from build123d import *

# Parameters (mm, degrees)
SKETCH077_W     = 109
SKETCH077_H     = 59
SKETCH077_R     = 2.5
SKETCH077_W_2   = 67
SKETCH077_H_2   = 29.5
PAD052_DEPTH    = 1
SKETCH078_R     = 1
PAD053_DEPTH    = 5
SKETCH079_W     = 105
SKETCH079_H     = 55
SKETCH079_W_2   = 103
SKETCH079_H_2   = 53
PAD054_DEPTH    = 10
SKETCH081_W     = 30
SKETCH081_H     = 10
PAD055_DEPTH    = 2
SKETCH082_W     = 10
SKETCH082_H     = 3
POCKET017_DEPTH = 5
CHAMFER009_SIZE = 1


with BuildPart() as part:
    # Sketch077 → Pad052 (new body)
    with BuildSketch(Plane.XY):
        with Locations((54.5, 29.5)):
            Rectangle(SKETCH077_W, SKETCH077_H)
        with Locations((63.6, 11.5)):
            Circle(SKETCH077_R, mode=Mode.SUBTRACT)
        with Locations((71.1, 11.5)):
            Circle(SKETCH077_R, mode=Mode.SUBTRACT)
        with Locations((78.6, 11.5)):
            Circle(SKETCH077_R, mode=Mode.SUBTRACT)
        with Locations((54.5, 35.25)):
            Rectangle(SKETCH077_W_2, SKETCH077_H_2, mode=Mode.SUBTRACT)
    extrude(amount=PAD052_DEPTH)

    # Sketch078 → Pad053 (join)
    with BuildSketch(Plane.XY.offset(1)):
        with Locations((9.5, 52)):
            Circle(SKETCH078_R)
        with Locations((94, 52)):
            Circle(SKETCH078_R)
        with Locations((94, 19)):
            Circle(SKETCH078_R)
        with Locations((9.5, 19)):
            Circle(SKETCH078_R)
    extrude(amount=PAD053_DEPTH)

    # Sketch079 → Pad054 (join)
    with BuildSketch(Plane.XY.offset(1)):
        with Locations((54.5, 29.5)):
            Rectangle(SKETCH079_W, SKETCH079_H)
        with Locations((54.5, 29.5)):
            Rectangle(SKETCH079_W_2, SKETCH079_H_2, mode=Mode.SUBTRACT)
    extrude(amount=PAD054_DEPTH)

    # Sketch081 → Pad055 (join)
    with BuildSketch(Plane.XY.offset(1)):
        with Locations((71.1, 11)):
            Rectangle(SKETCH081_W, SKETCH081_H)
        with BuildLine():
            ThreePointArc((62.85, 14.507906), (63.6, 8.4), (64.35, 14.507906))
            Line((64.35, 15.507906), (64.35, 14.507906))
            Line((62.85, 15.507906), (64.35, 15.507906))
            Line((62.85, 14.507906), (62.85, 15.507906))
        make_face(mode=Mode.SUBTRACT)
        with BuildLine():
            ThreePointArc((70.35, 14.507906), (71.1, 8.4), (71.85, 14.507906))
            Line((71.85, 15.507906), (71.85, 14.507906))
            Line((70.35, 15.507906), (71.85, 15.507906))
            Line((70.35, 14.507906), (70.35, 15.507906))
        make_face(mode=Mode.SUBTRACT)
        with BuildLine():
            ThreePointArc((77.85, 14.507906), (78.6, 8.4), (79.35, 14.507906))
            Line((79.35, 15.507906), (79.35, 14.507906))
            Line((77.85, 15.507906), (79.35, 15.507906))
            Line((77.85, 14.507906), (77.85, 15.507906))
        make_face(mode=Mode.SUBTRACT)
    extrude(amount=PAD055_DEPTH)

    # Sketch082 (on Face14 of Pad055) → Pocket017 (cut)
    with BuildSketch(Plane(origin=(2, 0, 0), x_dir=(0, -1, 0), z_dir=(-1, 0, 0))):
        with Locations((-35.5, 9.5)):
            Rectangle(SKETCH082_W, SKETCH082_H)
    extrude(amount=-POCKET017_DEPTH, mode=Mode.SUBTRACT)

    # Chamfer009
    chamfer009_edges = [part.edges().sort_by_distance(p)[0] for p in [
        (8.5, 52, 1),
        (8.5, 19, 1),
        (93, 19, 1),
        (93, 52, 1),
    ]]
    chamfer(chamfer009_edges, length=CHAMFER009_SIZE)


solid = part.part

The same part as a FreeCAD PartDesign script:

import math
import FreeCAD as App
import Part
import Sketcher


def edges_at(feature, points):
    """Names of the edges that pass closest to the given points."""
    edges = feature.Shape.Edges
    near = lambda p: min(range(len(edges)), key=lambda i: edges[i].distToShape(Part.Vertex(*p))[0])
    return sorted({f"Edge{near(p) + 1}" for p in points})


def add_polygon(sketch, points):
    """Adds a closed chain of lines whose ends are joined by coincident constraints."""
    first, n = sketch.GeometryCount, len(points)
    for a, b in zip(points, points[1:] + points[:1]):
        sketch.addGeometry(Part.LineSegment(App.Vector(*a, 0), App.Vector(*b, 0)), False)
    for i in range(n):
        sketch.addConstraint(Sketcher.Constraint("Coincident", first + i, 2, first + (i + 1) % n, 1))

doc = App.newDocument("Part")
body = doc.addObject("PartDesign::Body", "Body")

sketch1 = body.newObject("Sketcher::SketchObject", "Sketch")
sketch1.AttachmentSupport = (doc.getObject("XY_Plane"), [""])
sketch1.MapMode = "FlatFace"
add_polygon(sketch1, [(0, 59), (0, 0), (109, 0), (109, 59)])
sketch1.addGeometry(Part.Circle(App.Vector(63.6, 11.5, 0), App.Vector(0, 0, 1), 2.5), False)
sketch1.addGeometry(Part.Circle(App.Vector(71.1, 11.5, 0), App.Vector(0, 0, 1), 2.5), False)
sketch1.addGeometry(Part.Circle(App.Vector(78.6, 11.5, 0), App.Vector(0, 0, 1), 2.5), False)
add_polygon(sketch1, [(88, 20.5), (21, 20.5), (21, 50), (88, 50)])
sketch1.addConstraint(Sketcher.Constraint("Vertical", 0))
sketch1.addConstraint(Sketcher.Constraint("Horizontal", 1))
sketch1.addConstraint(Sketcher.Constraint("Vertical", 2))
sketch1.addConstraint(Sketcher.Constraint("Horizontal", 3))
sketch1.addConstraint(Sketcher.Constraint("Horizontal", 7))
sketch1.addConstraint(Sketcher.Constraint("Vertical", 8))
sketch1.addConstraint(Sketcher.Constraint("Horizontal", 9))
sketch1.addConstraint(Sketcher.Constraint("Vertical", 10))
sketch1.addConstraint(Sketcher.Constraint("Coincident", 0, 2, -1, 1))
sketch1.addConstraint(Sketcher.Constraint("Equal", 4, 5))
sketch1.addConstraint(Sketcher.Constraint("Equal", 5, 6))
sketch1.addConstraint(Sketcher.Constraint("Horizontal", 4, 3, 5, 3))
sketch1.addConstraint(Sketcher.Constraint("Horizontal", 5, 3, 6, 3))
sketch1.addConstraint(Sketcher.Constraint("Diameter", 4, 5.0))
sketch1.addConstraint(Sketcher.Constraint("DistanceX", 1, 1, 1, 2, 109.0))
sketch1.addConstraint(Sketcher.Constraint("DistanceX", 7, 2, 7, 1, 67.0))
sketch1.addConstraint(Sketcher.Constraint("DistanceY", 0, 2, 0, 1, 59.0))
sketch1.addConstraint(Sketcher.Constraint("DistanceY", 8, 1, 8, 2, 29.5))
sketch1.addConstraint(Sketcher.Constraint("DistanceX", -1, 1, 7, 2, 21.0))
sketch1.addConstraint(Sketcher.Constraint("DistanceY", -1, 1, 8, 2, 50.0))
sketch1.addConstraint(Sketcher.Constraint("DistanceX", 4, 3, 6, 3, 15.0))
sketch1.addConstraint(Sketcher.Constraint("DistanceY", 4, 3, 7, 2, 9.0))
sketch1.addConstraint(Sketcher.Constraint("DistanceX", -1, 1, 4, 3, 63.6))
sketch1.addConstraint(Sketcher.Constraint("DistanceX", -1, 1, 5, 3, 71.1))
pad1 = body.newObject("PartDesign::Pad", "Pad")
pad1.Profile = sketch1
pad1.Length = 1

sketch2 = body.newObject("Sketcher::SketchObject", "Sketch001")
sketch2.AttachmentSupport = (doc.getObject("XY_Plane"), [""])
sketch2.MapMode = "FlatFace"
sketch2.AttachmentOffset = App.Placement(App.Vector(0, 0, 1), App.Rotation())
sketch2.addGeometry(Part.Circle(App.Vector(9.5, 52, 0), App.Vector(0, 0, 1), 1), False)
sketch2.addGeometry(Part.Circle(App.Vector(94, 52, 0), App.Vector(0, 0, 1), 1), False)
sketch2.addGeometry(Part.Circle(App.Vector(94, 19, 0), App.Vector(0, 0, 1), 1), False)
sketch2.addGeometry(Part.Circle(App.Vector(9.5, 19, 0), App.Vector(0, 0, 1), 1), False)
sketch2.addConstraint(Sketcher.Constraint("Equal", 0, 1))
sketch2.addConstraint(Sketcher.Constraint("Equal", 1, 2))
sketch2.addConstraint(Sketcher.Constraint("Equal", 2, 3))
sketch2.addConstraint(Sketcher.Constraint("Horizontal", 0, 3, 1, 3))
sketch2.addConstraint(Sketcher.Constraint("Horizontal", 2, 3, 3, 3))
sketch2.addConstraint(Sketcher.Constraint("Vertical", 1, 3, 2, 3))
sketch2.addConstraint(Sketcher.Constraint("Vertical", 0, 3, 3, 3))
sketch2.addConstraint(Sketcher.Constraint("Diameter", 0, 2.0))
sketch2.addConstraint(Sketcher.Constraint("DistanceY", -1, 1, 0, 3, 52.0))
sketch2.addConstraint(Sketcher.Constraint("DistanceX", -1, 1, 1, 3, 94.0))
sketch2.addConstraint(Sketcher.Constraint("DistanceY", -1, 1, 2, 3, 19.0))
sketch2.addConstraint(Sketcher.Constraint("DistanceX", -1, 1, 0, 3, 9.5))
pad2 = body.newObject("PartDesign::Pad", "Pad001")
pad2.Profile = sketch2
pad2.Length = 5

sketch3 = body.newObject("Sketcher::SketchObject", "Sketch002")
sketch3.AttachmentSupport = (doc.getObject("XY_Plane"), [""])
sketch3.MapMode = "FlatFace"
sketch3.AttachmentOffset = App.Placement(App.Vector(0, 0, 1), App.Rotation())
add_polygon(sketch3, [(2, 57), (2, 2), (107, 2), (107, 57)])
add_polygon(sketch3, [(106, 3), (3, 3), (3, 56), (106, 56)])
sketch3.addConstraint(Sketcher.Constraint("Vertical", 0))
sketch3.addConstraint(Sketcher.Constraint("Horizontal", 1))
sketch3.addConstraint(Sketcher.Constraint("Vertical", 2))
sketch3.addConstraint(Sketcher.Constraint("Horizontal", 3))
sketch3.addConstraint(Sketcher.Constraint("Horizontal", 4))
sketch3.addConstraint(Sketcher.Constraint("Vertical", 5))
sketch3.addConstraint(Sketcher.Constraint("Horizontal", 6))
sketch3.addConstraint(Sketcher.Constraint("Vertical", 7))
sketch3.addConstraint(Sketcher.Constraint("DistanceX", 1, 1, 1, 2, 105.0))
sketch3.addConstraint(Sketcher.Constraint("DistanceX", 4, 2, 4, 1, 103.0))
sketch3.addConstraint(Sketcher.Constraint("DistanceY", 0, 2, 0, 1, 55.0))
sketch3.addConstraint(Sketcher.Constraint("DistanceY", 5, 1, 5, 2, 53.0))
sketch3.addConstraint(Sketcher.Constraint("DistanceX", -1, 1, 0, 2, 2.0))
sketch3.addConstraint(Sketcher.Constraint("DistanceY", -1, 1, 0, 2, 2.0))
sketch3.addConstraint(Sketcher.Constraint("DistanceX", -1, 1, 4, 2, 3.0))
sketch3.addConstraint(Sketcher.Constraint("DistanceY", -1, 1, 4, 2, 3.0))
pad3 = body.newObject("PartDesign::Pad", "Pad002")
pad3.Profile = sketch3
pad3.Length = 10

sketch4 = body.newObject("Sketcher::SketchObject", "Sketch003")
sketch4.AttachmentSupport = (doc.getObject("XY_Plane"), [""])
sketch4.MapMode = "FlatFace"
sketch4.AttachmentOffset = App.Placement(App.Vector(0, 0, 1), App.Rotation())
add_polygon(sketch4, [(56.1, 16), (56.1, 6), (86.1, 6), (86.1, 16)])
sketch4.addGeometry(Part.ArcOfCircle(Part.Circle(App.Vector(63.6, 11.5, 0), App.Vector(0, 0, 1), 3.1), math.radians(104), math.radians(436)), False)
sketch4.addGeometry(Part.LineSegment(App.Vector(62.9, 14.5, 0), App.Vector(62.9, 15.5, 0)), False)
sketch4.addGeometry(Part.LineSegment(App.Vector(62.9, 15.5, 0), App.Vector(64.3, 15.5, 0)), False)
sketch4.addGeometry(Part.LineSegment(App.Vector(64.3, 15.5, 0), App.Vector(64.3, 14.5, 0)), False)
sketch4.addGeometry(Part.ArcOfCircle(Part.Circle(App.Vector(71.1, 11.5, 0), App.Vector(0, 0, 1), 3.1), math.radians(104), math.radians(436)), False)
sketch4.addGeometry(Part.LineSegment(App.Vector(70.3, 14.5, 0), App.Vector(70.3, 15.5, 0)), False)
sketch4.addGeometry(Part.LineSegment(App.Vector(70.3, 15.5, 0), App.Vector(71.8, 15.5, 0)), False)
sketch4.addGeometry(Part.LineSegment(App.Vector(71.8, 15.5, 0), App.Vector(71.8, 14.5, 0)), False)
sketch4.addGeometry(Part.ArcOfCircle(Part.Circle(App.Vector(78.6, 11.5, 0), App.Vector(0, 0, 1), 3.1), math.radians(104), math.radians(436)), False)
sketch4.addGeometry(Part.LineSegment(App.Vector(77.8, 14.5, 0), App.Vector(77.8, 15.5, 0)), False)
sketch4.addGeometry(Part.LineSegment(App.Vector(77.8, 15.5, 0), App.Vector(79.3, 15.5, 0)), False)
sketch4.addGeometry(Part.LineSegment(App.Vector(79.3, 15.5, 0), App.Vector(79.3, 14.5, 0)), False)
sketch4.addConstraint(Sketcher.Constraint("Coincident", 4, 1, 5, 1))
sketch4.addConstraint(Sketcher.Constraint("Coincident", 5, 2, 6, 1))
sketch4.addConstraint(Sketcher.Constraint("Coincident", 6, 2, 7, 1))
sketch4.addConstraint(Sketcher.Constraint("Coincident", 7, 2, 4, 2))
sketch4.addConstraint(Sketcher.Constraint("Coincident", 8, 1, 9, 1))
sketch4.addConstraint(Sketcher.Constraint("Coincident", 9, 2, 10, 1))
sketch4.addConstraint(Sketcher.Constraint("Coincident", 10, 2, 11, 1))
sketch4.addConstraint(Sketcher.Constraint("Coincident", 11, 2, 8, 2))
sketch4.addConstraint(Sketcher.Constraint("Coincident", 12, 1, 13, 1))
sketch4.addConstraint(Sketcher.Constraint("Coincident", 13, 2, 14, 1))
sketch4.addConstraint(Sketcher.Constraint("Coincident", 14, 2, 15, 1))
sketch4.addConstraint(Sketcher.Constraint("Coincident", 15, 2, 12, 2))
sketch4.addConstraint(Sketcher.Constraint("Vertical", 0))
sketch4.addConstraint(Sketcher.Constraint("Horizontal", 1))
sketch4.addConstraint(Sketcher.Constraint("Vertical", 2))
sketch4.addConstraint(Sketcher.Constraint("Horizontal", 3))
sketch4.addConstraint(Sketcher.Constraint("Vertical", 5))
sketch4.addConstraint(Sketcher.Constraint("Horizontal", 6))
sketch4.addConstraint(Sketcher.Constraint("Vertical", 7))
sketch4.addConstraint(Sketcher.Constraint("Vertical", 9))
sketch4.addConstraint(Sketcher.Constraint("Horizontal", 10))
sketch4.addConstraint(Sketcher.Constraint("Vertical", 11))
sketch4.addConstraint(Sketcher.Constraint("Vertical", 13))
sketch4.addConstraint(Sketcher.Constraint("Horizontal", 14))
sketch4.addConstraint(Sketcher.Constraint("Vertical", 15))
sketch4.addConstraint(Sketcher.Constraint("Equal", 4, 8))
sketch4.addConstraint(Sketcher.Constraint("Equal", 8, 12))
sketch4.addConstraint(Sketcher.Constraint("Horizontal", 4, 3, 8, 3))
sketch4.addConstraint(Sketcher.Constraint("Horizontal", 8, 3, 12, 3))
sketch4.addConstraint(Sketcher.Constraint("Horizontal", 4, 1, 7, 2))
sketch4.addConstraint(Sketcher.Constraint("Horizontal", 7, 2, 8, 1))
sketch4.addConstraint(Sketcher.Constraint("Horizontal", 6, 2, 9, 2))
sketch4.addConstraint(Sketcher.Constraint("Horizontal", 8, 1, 11, 2))
sketch4.addConstraint(Sketcher.Constraint("Horizontal", 11, 2, 12, 1))
sketch4.addConstraint(Sketcher.Constraint("Horizontal", 10, 2, 13, 2))
sketch4.addConstraint(Sketcher.Constraint("Horizontal", 12, 1, 15, 2))
sketch4.addConstraint(Sketcher.Constraint("Radius", 4, 3.1))
sketch4.addConstraint(Sketcher.Constraint("DistanceX", 1, 1, 1, 2, 30.0))
sketch4.addConstraint(Sketcher.Constraint("DistanceY", 0, 2, 0, 1, 10.0))
sketch4.addConstraint(Sketcher.Constraint("DistanceY", 5, 1, 5, 2, 1.0))
sketch4.addConstraint(Sketcher.Constraint("DistanceX", 6, 1, 6, 2, 1.5))
sketch4.addConstraint(Sketcher.Constraint("DistanceY", -1, 1, 0, 2, 6.0))
sketch4.addConstraint(Sketcher.Constraint("DistanceX", 4, 3, 12, 3, 15.0))
sketch4.addConstraint(Sketcher.Constraint("DistanceX", 0, 2, 8, 3, 15.0))
sketch4.addConstraint(Sketcher.Constraint("DistanceX", 7, 2, 8, 1, 6.0))
sketch4.addConstraint(Sketcher.Constraint("DistanceX", -1, 1, 4, 3, 63.6))
sketch4.addConstraint(Sketcher.Constraint("DistanceY", -1, 1, 4, 3, 11.5))
pad4 = body.newObject("PartDesign::Pad", "Pad003")
pad4.Profile = sketch4
pad4.Length = 2

sketch5 = body.newObject("Sketcher::SketchObject", "Sketch004")
sketch5.AttachmentSupport = (doc.getObject("YZ_Plane"), [""])
sketch5.MapMode = "FlatFace"
sketch5.AttachmentOffset = App.Placement(App.Vector(0, 0, 2), App.Rotation())
add_polygon(sketch5, [(40.5, 11), (40.5, 8), (30.5, 8), (30.5, 11)])
sketch5.addConstraint(Sketcher.Constraint("Vertical", 0))
sketch5.addConstraint(Sketcher.Constraint("Horizontal", 1))
sketch5.addConstraint(Sketcher.Constraint("Vertical", 2))
sketch5.addConstraint(Sketcher.Constraint("Horizontal", 3))
sketch5.addConstraint(Sketcher.Constraint("DistanceX", 1, 2, 1, 1, 10.0))
sketch5.addConstraint(Sketcher.Constraint("DistanceY", 0, 2, 0, 1, 3.0))
sketch5.addConstraint(Sketcher.Constraint("DistanceY", -1, 1, 0, 2, 8.0))
sketch5.addConstraint(Sketcher.Constraint("DistanceX", -1, 1, 0, 2, 40.5))
pocket1 = body.newObject("PartDesign::Pocket", "Pocket")
pocket1.Profile = sketch5
pocket1.Length = 5
pocket1.Reversed = True
doc.recompute()

chamfer = body.newObject("PartDesign::Chamfer", "Chamfer")
chamfer.Base = (pocket1, edges_at(pocket1, [
    (8.5, 52, 1),
    (8.5, 19, 1),
    (93, 19, 1),
    (93, 52, 1),
]))
chamfer.Size = 1

doc.recompute()
